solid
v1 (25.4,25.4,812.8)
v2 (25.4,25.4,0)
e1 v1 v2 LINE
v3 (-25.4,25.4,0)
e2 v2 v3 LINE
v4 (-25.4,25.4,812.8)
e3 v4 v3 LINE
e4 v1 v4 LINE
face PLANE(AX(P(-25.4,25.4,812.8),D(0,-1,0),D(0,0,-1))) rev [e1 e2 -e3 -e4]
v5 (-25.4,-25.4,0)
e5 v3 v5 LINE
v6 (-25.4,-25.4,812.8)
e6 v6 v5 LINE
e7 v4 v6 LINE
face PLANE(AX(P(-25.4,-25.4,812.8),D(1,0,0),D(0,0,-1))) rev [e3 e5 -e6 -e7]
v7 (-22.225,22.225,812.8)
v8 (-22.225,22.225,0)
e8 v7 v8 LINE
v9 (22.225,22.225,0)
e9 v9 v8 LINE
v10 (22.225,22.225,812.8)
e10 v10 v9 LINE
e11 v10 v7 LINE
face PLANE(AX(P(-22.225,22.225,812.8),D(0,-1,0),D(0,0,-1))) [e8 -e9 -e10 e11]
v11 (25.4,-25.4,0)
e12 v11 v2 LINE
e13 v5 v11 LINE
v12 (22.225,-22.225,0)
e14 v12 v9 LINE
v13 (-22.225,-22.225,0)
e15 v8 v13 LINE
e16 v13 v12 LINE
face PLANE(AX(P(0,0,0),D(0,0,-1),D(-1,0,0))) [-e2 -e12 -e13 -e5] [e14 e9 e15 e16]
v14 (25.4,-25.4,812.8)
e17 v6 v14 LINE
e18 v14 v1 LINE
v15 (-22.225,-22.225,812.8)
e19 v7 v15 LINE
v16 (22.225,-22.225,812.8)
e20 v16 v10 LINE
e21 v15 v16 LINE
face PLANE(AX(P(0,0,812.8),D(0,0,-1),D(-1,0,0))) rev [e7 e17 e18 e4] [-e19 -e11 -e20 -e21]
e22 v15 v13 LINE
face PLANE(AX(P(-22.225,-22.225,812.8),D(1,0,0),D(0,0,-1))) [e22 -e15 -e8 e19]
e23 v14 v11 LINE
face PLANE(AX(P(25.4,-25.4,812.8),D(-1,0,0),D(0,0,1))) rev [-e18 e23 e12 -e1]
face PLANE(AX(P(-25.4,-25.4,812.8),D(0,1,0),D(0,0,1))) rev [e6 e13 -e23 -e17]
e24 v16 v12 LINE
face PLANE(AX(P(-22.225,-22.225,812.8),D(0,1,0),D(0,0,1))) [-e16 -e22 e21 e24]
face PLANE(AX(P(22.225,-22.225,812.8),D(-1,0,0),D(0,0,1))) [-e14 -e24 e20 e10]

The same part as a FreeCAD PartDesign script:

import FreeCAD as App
import Part
import Sketcher
Q = App.Units.Quantity


def add_polygon(sketch, points):
    """Adds a closed chain of lines whose ends are joined by coincident constraints."""
    first, n = sketch.GeometryCount, len(points)
    for a, b in zip(points, points[1:] + points[:1]):
        sketch.addGeometry(Part.LineSegment(App.Vector(*a, 0), App.Vector(*b, 0)), False)
    for i in range(n):
        sketch.addConstraint(Sketcher.Constraint("Coincident", first + i, 2, first + (i + 1) % n, 1))

doc = App.newDocument("Part")
body = doc.addObject("PartDesign::Body", "Body")

# Sketch on XY plane
sketch1 = body.newObject("Sketcher::SketchObject", "Sketch")
sketch1.AttachmentSupport = (doc.getObject("XY_Plane"), [""])
sketch1.MapMode = "FlatFace"
add_polygon(sketch1, [(-25, 25), (-25, -25), (25, -25), (25, 25)])  # lines 0-3
add_polygon(sketch1, [(22, -22), (-22, -22), (-22, 22), (22, 22)])  # lines 4-7
sketch1.addConstraint([
    Sketcher.Constraint("Vertical", 0),
    Sketcher.Constraint("Horizontal", 1),
    Sketcher.Constraint("Vertical", 2),
    Sketcher.Constraint("Horizontal", 3),
    Sketcher.Constraint("Horizontal", 4),
    Sketcher.Constraint("Vertical", 5),
    Sketcher.Constraint("Horizontal", 6),
    Sketcher.Constraint("Vertical", 7),
    Sketcher.Constraint("Symmetric", 0, 2, 2, 2, -1, 1),
    Sketcher.Constraint("Symmetric", 4, 2, 6, 2, -1, 1),
    Sketcher.Constraint("Equal", 3, 0),
    Sketcher.Constraint("Equal", 6, 5),
    Sketcher.Constraint("DistanceX", 1, 1, 1, 2, Q("2 in")),
    Sketcher.Constraint("DistanceX", 4, 2, 4, 1, Q("1.75 in")),
])
pad1 = body.newObject("PartDesign::Pad", "Pad")
pad1.Profile = sketch1
pad1.Length = Q("32 in")

doc.recompute()
